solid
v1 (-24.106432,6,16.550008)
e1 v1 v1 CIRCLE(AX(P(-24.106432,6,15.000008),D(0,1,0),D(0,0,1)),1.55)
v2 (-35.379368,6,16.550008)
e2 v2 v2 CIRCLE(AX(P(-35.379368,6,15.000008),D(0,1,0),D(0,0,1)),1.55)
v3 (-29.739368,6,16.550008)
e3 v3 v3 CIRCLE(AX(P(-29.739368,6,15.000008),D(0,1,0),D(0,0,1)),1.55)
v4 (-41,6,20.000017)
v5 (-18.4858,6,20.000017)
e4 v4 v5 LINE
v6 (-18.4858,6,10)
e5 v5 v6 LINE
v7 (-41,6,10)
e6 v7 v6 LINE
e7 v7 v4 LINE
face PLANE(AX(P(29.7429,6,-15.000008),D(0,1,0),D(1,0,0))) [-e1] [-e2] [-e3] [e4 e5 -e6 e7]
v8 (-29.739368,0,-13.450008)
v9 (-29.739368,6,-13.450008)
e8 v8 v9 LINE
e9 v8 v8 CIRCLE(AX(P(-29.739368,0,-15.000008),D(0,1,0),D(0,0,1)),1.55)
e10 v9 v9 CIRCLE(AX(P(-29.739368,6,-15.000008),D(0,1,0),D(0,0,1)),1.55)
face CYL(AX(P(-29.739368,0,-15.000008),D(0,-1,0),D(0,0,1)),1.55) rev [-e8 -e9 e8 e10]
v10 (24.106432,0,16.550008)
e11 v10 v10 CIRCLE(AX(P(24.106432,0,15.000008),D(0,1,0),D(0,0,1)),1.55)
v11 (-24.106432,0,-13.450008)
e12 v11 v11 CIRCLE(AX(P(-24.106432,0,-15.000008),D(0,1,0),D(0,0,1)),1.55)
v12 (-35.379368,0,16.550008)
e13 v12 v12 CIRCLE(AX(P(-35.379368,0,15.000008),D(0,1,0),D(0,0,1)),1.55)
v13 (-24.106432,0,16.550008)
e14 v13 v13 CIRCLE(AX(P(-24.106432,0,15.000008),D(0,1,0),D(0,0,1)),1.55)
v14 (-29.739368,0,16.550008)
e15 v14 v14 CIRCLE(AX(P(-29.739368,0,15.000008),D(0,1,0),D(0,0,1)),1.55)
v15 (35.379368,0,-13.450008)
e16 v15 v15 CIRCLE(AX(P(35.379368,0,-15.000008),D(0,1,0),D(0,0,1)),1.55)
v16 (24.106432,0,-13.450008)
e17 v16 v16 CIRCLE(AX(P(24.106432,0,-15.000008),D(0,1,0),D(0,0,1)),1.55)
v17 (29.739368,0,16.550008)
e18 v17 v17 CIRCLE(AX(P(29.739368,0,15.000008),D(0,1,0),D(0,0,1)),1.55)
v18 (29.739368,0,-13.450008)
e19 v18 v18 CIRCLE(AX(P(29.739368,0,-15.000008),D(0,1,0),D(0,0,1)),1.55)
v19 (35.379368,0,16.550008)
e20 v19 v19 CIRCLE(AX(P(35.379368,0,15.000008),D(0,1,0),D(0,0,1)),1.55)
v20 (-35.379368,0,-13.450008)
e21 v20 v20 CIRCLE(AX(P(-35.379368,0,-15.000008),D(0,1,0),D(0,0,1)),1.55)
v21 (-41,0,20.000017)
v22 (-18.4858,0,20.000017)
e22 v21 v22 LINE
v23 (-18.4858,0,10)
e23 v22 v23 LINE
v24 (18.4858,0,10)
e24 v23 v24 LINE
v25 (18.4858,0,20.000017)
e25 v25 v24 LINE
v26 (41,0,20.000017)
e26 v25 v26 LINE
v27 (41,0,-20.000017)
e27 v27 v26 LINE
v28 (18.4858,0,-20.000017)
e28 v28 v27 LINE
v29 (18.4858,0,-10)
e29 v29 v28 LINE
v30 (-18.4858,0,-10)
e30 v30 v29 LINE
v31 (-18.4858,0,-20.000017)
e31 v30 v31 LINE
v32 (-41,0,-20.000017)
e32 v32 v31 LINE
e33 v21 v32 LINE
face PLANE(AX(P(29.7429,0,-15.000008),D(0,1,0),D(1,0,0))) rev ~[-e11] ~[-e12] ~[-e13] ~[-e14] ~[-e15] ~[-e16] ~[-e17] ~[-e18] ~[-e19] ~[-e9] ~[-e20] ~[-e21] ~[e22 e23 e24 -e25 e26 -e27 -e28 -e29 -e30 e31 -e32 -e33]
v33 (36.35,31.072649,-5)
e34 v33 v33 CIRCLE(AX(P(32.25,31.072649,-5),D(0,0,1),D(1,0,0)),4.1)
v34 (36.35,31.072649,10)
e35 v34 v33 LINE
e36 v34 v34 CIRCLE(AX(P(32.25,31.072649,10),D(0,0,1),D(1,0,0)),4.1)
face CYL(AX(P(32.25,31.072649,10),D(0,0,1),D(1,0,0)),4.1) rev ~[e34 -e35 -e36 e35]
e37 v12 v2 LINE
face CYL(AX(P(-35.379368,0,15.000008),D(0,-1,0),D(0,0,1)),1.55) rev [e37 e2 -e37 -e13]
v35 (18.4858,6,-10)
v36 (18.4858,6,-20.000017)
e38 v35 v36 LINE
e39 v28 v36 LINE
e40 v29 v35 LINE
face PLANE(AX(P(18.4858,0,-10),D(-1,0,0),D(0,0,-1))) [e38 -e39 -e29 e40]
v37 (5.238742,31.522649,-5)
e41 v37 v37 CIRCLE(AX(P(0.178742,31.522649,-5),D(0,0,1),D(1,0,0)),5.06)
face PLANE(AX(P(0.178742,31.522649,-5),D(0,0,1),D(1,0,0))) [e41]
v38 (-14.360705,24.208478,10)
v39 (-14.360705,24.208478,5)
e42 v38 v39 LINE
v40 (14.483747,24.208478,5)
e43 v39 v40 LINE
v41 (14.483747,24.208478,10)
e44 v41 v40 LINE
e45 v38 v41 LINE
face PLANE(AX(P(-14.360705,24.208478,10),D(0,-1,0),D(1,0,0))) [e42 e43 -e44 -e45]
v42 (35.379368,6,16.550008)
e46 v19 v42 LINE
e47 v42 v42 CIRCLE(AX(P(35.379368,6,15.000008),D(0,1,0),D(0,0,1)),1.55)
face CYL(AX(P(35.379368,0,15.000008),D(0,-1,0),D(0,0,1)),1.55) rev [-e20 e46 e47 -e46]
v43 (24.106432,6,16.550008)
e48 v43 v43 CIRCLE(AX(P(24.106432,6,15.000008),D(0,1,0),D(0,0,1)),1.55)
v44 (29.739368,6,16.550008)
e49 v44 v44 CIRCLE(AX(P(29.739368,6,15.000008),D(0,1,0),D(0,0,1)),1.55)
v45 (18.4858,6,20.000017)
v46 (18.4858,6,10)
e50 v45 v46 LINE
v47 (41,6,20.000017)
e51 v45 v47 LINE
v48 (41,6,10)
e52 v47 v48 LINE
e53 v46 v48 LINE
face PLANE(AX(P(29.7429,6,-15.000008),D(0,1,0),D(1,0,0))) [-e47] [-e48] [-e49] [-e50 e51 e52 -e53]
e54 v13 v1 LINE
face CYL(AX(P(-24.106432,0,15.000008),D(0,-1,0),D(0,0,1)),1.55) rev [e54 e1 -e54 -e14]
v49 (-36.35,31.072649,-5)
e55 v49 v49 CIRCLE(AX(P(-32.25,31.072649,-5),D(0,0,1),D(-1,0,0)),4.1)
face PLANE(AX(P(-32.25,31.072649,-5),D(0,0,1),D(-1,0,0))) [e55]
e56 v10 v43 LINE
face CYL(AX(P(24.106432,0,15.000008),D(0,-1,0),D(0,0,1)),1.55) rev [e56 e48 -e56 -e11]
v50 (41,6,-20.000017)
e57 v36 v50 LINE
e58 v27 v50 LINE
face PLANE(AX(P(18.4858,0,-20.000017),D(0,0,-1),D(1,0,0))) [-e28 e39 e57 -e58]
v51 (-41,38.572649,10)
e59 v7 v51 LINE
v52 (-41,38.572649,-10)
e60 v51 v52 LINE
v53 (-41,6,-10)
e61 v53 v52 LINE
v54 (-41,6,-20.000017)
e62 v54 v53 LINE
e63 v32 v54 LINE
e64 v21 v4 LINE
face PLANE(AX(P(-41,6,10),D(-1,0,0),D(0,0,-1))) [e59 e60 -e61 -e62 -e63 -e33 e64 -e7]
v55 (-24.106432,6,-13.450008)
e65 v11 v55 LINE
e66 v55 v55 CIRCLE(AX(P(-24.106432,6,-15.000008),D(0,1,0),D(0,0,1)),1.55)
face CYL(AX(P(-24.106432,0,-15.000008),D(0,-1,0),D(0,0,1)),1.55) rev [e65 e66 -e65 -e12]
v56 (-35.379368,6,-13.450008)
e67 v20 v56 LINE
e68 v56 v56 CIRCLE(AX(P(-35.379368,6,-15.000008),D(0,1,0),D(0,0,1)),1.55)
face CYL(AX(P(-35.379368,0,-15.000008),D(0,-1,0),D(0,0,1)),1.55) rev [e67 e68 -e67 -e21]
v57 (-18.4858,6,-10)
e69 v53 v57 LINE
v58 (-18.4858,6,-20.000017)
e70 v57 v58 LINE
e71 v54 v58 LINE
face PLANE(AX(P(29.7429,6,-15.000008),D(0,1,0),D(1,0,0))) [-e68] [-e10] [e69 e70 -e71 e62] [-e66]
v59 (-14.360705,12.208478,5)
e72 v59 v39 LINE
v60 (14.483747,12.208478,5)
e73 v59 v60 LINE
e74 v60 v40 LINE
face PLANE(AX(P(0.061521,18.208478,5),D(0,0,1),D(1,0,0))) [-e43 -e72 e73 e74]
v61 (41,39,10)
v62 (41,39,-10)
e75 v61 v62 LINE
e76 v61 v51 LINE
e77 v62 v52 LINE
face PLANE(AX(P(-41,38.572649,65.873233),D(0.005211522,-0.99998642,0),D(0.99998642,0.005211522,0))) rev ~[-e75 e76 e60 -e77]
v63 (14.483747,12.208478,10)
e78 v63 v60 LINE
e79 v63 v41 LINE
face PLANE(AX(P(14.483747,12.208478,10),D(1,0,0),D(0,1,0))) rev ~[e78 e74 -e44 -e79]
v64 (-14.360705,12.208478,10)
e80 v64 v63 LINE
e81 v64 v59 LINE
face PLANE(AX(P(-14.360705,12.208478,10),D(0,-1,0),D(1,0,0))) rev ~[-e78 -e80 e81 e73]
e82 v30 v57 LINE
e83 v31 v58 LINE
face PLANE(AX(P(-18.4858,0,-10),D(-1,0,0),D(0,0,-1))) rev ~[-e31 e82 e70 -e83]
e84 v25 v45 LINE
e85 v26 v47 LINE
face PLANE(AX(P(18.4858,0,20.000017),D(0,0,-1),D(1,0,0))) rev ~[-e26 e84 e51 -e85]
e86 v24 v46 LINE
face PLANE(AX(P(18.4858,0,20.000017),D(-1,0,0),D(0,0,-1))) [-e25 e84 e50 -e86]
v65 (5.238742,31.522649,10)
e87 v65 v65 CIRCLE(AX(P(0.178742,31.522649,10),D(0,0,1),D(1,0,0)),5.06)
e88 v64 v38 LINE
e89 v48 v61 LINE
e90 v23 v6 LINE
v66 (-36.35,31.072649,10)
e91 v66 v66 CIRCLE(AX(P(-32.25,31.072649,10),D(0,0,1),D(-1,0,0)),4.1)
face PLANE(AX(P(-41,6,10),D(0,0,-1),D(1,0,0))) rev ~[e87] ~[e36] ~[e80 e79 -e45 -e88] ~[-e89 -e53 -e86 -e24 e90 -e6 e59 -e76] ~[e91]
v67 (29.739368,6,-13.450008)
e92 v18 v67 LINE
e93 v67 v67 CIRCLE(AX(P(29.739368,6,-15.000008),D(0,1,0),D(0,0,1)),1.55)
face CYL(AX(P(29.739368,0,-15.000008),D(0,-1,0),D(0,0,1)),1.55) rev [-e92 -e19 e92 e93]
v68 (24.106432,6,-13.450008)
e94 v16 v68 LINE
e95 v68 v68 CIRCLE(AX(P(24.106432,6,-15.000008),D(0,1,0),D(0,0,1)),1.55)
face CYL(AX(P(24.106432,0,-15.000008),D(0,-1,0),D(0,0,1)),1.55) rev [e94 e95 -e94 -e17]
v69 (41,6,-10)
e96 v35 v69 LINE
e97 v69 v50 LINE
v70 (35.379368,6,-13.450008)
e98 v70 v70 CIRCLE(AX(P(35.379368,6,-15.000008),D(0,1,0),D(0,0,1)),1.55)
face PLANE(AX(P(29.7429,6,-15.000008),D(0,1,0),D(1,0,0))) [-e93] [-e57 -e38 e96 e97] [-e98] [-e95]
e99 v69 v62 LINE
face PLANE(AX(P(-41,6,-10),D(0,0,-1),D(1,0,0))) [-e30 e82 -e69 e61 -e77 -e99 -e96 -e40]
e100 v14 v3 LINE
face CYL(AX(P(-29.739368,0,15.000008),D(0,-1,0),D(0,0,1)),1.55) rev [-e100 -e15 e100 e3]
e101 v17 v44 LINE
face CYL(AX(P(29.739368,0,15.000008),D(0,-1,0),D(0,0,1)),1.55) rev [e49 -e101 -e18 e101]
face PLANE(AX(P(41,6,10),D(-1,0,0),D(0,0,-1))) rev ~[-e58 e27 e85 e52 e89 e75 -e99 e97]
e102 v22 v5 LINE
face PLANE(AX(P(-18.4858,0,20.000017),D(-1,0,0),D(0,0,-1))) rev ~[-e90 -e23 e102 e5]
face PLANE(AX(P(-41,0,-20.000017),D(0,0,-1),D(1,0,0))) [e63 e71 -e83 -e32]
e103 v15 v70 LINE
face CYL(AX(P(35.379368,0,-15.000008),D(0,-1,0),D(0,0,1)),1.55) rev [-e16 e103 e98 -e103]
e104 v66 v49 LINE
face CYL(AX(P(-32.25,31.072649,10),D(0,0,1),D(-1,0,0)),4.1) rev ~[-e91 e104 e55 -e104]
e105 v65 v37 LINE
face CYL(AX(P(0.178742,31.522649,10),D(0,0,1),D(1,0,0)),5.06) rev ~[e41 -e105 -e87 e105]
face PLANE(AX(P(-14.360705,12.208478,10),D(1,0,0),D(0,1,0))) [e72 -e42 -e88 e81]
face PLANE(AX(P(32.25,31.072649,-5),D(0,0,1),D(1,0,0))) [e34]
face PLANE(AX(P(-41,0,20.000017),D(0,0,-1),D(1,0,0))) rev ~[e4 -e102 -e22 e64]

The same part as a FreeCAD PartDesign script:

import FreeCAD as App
import Part
import Sketcher
from FreeCAD import Vector


def add_polygon(sketch, points):
    """Adds a closed chain of lines whose ends are joined by coincident constraints."""
    first, n = sketch.GeometryCount, len(points)
    for a, b in zip(points, points[1:] + points[:1]):
        sketch.addGeometry(Part.LineSegment(App.Vector(*a, 0), App.Vector(*b, 0)), False)
    for i in range(n):
        sketch.addConstraint(Sketcher.Constraint("Coincident", first + i, 2, first + (i + 1) % n, 1))

doc = App.newDocument("Part")
body = doc.addObject("PartDesign::Body", "Body")

# Sketch on XZ plane
sketch1 = body.newObject("Sketcher::SketchObject", "Sketch")
sketch1.AttachmentSupport = (doc.getObject("XZ_Plane"), [""])
sketch1.MapMode = "FlatFace"
add_polygon(sketch1, [(-41, -20), (-41, 20), (-18.5, 20), (-18.5, 10), (18.5, 10), (18.5, 20), (41, 20), (41, -20), (18.5, -20), (18.5, -10), (-18.5, -10), (-18.5, -20)])  # lines 0-11
sketch1.addGeometry(Part.Circle(Vector(-35.4, -15, 0), Vector(0, 0, 1), 1.6), False)  # 12
sketch1.addGeometry(Part.Circle(Vector(-29.7, -15, 0), Vector(0, 0, 1), 1.6), False)  # 13
sketch1.addGeometry(Part.Circle(Vector(-24.1, -15, 0), Vector(0, 0, 1), 1.6), False)  # 14
sketch1.addGeometry(Part.Circle(Vector(-24.1, 15, 0), Vector(0, 0, 1), 1.6), False)  # 15
sketch1.addGeometry(Part.Circle(Vector(-35.4, 15, 0), Vector(0, 0, 1), 1.6), False)  # 16
sketch1.addGeometry(Part.Circle(Vector(-29.7, 15, 0), Vector(0, 0, 1), 1.6), False)  # 17
sketch1.addGeometry(Part.Circle(Vector(35.4, 15, 0), Vector(0, 0, 1), 1.6), False)  # 18
sketch1.addGeometry(Part.Circle(Vector(24.1, 15, 0), Vector(0, 0, 1), 1.6), False)  # 19
sketch1.addGeometry(Part.Circle(Vector(29.7, 15, 0), Vector(0, 0, 1), 1.6), False)  # 20
sketch1.addGeometry(Part.Circle(Vector(35.4, -15, 0), Vector(0, 0, 1), 1.6), False)  # 21
sketch1.addGeometry(Part.Circle(Vector(24.1, -15, 0), Vector(0, 0, 1), 1.6), False)  # 22
sketch1.addGeometry(Part.Circle(Vector(29.7, -15, 0), Vector(0, 0, 1), 1.6), False)  # 23
sketch1.addConstraint([
    Sketcher.Constraint("Vertical", 0),
    Sketcher.Constraint("Horizontal", 1),
    Sketcher.Constraint("Vertical", 2),
    Sketcher.Constraint("Horizontal", 3),
    Sketcher.Constraint("Vertical", 4),
    Sketcher.Constraint("Horizontal", 5),
    Sketcher.Constraint("Vertical", 6),
    Sketcher.Constraint("Horizontal", 7),
    Sketcher.Constraint("Vertical", 8),
    Sketcher.Constraint("Horizontal", 9),
    Sketcher.Constraint("Vertical", 10),
    Sketcher.Constraint("Horizontal", 11),
    Sketcher.Constraint("Equal", 12, 13),
    Sketcher.Constraint("Equal", 13, 14),
    Sketcher.Constraint("Equal", 14, 15),
    Sketcher.Constraint("Equal", 15, 16),
    Sketcher.Constraint("Equal", 16, 17),
    Sketcher.Constraint("Equal", 17, 18),
    Sketcher.Constraint("Equal", 18, 19),
    Sketcher.Constraint("Equal", 19, 20),
    Sketcher.Constraint("Equal", 20, 21),
    Sketcher.Constraint("Equal", 21, 22),
    Sketcher.Constraint("Equal", 22, 23),
    Sketcher.Constraint("Symmetric", 12, 3, 18, 3, -1, 1),
    Sketcher.Constraint("Symmetric", 14, 3, 19, 3, -1, 1),
    Sketcher.Constraint("Symmetric", 13, 3, 20, 3, -1, 1),
    Sketcher.Constraint("Symmetric", 16, 3, 21, 3, -1, 1),
    Sketcher.Constraint("Symmetric", 15, 3, 22, 3, -1, 1),
    Sketcher.Constraint("Symmetric", 17, 3, 23, 3, -1, 1),
    Sketcher.Constraint("Symmetric", 0, 2, 6, 2, -1, 1),
    Sketcher.Constraint("Symmetric", 2, 2, 8, 2, -1, 1),
    Sketcher.Constraint("Symmetric", 4, 2, 10, 2, -1, 1),
    Sketcher.Constraint("Symmetric", 16, 3, 18, 3, -2),
    Sketcher.Constraint("Symmetric", 15, 3, 19, 3, -2),
    Sketcher.Constraint("Symmetric", 17, 3, 20, 3, -2),
    Sketcher.Constraint("Symmetric", 1, 2, 4, 2, -2),
    Sketcher.Constraint("Horizontal", 12, 3, 13, 3),
    Sketcher.Constraint("Horizontal", 13, 3, 14, 3),
    Sketcher.Constraint("Diameter", 12, 3.1),
    Sketcher.Constraint("DistanceX", 0, 2, -1, 1, 41.0),
    Sketcher.Constraint("DistanceY", -1, 1, 2, 2, 10.0),
    Sketcher.Constraint("DistanceX", 12, 3, 13, 3, 5.64),
    Sketcher.Constraint("DistanceX", 1, 1, 1, 2, 22.5142),
    Sketcher.Constraint("DistanceX", 15, 3, 18, 3, 59.4858),
    Sketcher.Constraint("DistanceY", 0, 1, 0, 2, 40.000034),
    Sketcher.Constraint("DistanceY", 12, 3, -1, 1, 15.000008),
    Sketcher.Constraint("DistanceX", 12, 3, -1, 1, 35.379368),
])
pad1 = body.newObject("PartDesign::Pad", "Pad")
pad1.Profile = sketch1
pad1.Length = 6
pad1.Reversed = True

# Sketch on XZ plane
sketch2 = body.newObject("Sketcher::SketchObject", "Sketch001")
sketch2.AttachmentSupport = (doc.getObject("XZ_Plane"), [""])
sketch2.MapMode = "FlatFace"
sketch2.AttachmentOffset = App.Placement(Vector(0, 0, -6), App.Rotation())
add_polygon(sketch2, [(-41, -10), (-41, 10), (41, 10), (41, -10)])  # lines 0-3
sketch2.addConstraint([
    Sketcher.Constraint("Vertical", 0),
    Sketcher.Constraint("Horizontal", 1),
    Sketcher.Constraint("Vertical", 2),
    Sketcher.Constraint("Horizontal", 3),
    Sketcher.Constraint("Symmetric", 0, 2, 2, 2, -1, 1),
    Sketcher.Constraint("DistanceX", 1, 1, 1, 2, 82.0),
    Sketcher.Constraint("DistanceY", 0, 1, 0, 2, 20.0),
])
pad2 = body.newObject("PartDesign::Pad", "Pad001")
pad2.Profile = sketch2
pad2.Length = 49
pad2.Reversed = True

# Sketch on XY plane
sketch3 = body.newObject("Sketcher::SketchObject", "Sketch002")
sketch3.AttachmentSupport = (doc.getObject("XY_Plane"), [""])
sketch3.MapMode = "FlatFace"
sketch3.AttachmentOffset = App.Placement(Vector(0, 0, 10), App.Rotation())
sketch3.addGeometry([
    Part.Circle(Vector(32.2, 31.1, 0), Vector(0, 0, 1), 4.1),
    Part.Circle(Vector(-32.2, 31.1, 0), Vector(0, 0, 1), 4.1),
], False)
sketch3.addConstraint([
    Sketcher.Constraint("Equal", 0, 1),
    Sketcher.Constraint("Symmetric", 0, 3, 1, 3, -2),
    Sketcher.Constraint("Diameter", 0, 8.2),
    Sketcher.Constraint("DistanceX", 1, 3, 0, 3, 64.5),
    Sketcher.Constraint("DistanceY", -1, 1, 0, 3, 31.072649),
])
pocket1 = body.newObject("PartDesign::Pocket", "Pocket")
pocket1.Profile = sketch3
pocket1.Length = 15

# Sketch on XY plane
sketch4 = body.newObject("Sketcher::SketchObject", "Sketch003")
sketch4.AttachmentSupport = (doc.getObject("XY_Plane"), [""])
sketch4.MapMode = "FlatFace"
sketch4.AttachmentOffset = App.Placement(Vector(0, 0, 10), App.Rotation())
sketch4.addGeometry(Part.Circle(Vector(0, 32, 0), Vector(0, 0, 1), 5), False)
sketch4.addConstraint([
    Sketcher.Constraint("Diameter", 0, 10.12),
    Sketcher.Constraint("DistanceY", -1, 1, 0, 3, 31.522649),
    Sketcher.Constraint("DistanceX", -1, 1, 0, 3, 0.178742),
])
pocket2 = body.newObject("PartDesign::Pocket", "Pocket001")
pocket2.Profile = sketch4
pocket2.Length = 15

# Sketch on XY plane
sketch5 = body.newObject("Sketcher::SketchObject", "Sketch004")
sketch5.AttachmentSupport = (doc.getObject("XY_Plane"), [""])
sketch5.MapMode = "FlatFace"
sketch5.AttachmentOffset = App.Placement(Vector(0, 0, -10), App.Rotation())
add_polygon(sketch5, [(-41, 39), (-41, 55), (41, 55), (41, 39)])  # lines 0-3
sketch5.addConstraint([
    Sketcher.Constraint("Vertical", 0),
    Sketcher.Constraint("Horizontal", 1),
    Sketcher.Constraint("Vertical", 2),
    Sketcher.Constraint("DistanceX", 1, 1, 1, 2, 82.0),
    Sketcher.Constraint("DistanceY", 2, 2, 2, 1, 16.0),
    Sketcher.Constraint("DistanceX", 0, 2, -1, 1, 41.0),
    Sketcher.Constraint("DistanceY", -1, 1, 0, 2, 55.0),
    Sketcher.Constraint("DistanceY", 0, 1, 0, 2, 16.427351),
])
pocket3 = body.newObject("PartDesign::Pocket", "Pocket002")
pocket3.Profile = sketch5
pocket3.Type = "ThroughAll"
pocket3.Midplane = True

# Sketch on XY plane
sketch6 = body.newObject("Sketcher::SketchObject", "Sketch005")
sketch6.AttachmentSupport = (doc.getObject("XY_Plane"), [""])
sketch6.MapMode = "FlatFace"
sketch6.AttachmentOffset = App.Placement(Vector(0, 0, 10), App.Rotation())
add_polygon(sketch6, [(-14, 24), (-14, 12), (14, 12), (14, 24)])  # lines 0-3
sketch6.addConstraint([
    Sketcher.Constraint("Vertical", 0),
    Sketcher.Constraint("Horizontal", 1),
    Sketcher.Constraint("Vertical", 2),
    Sketcher.Constraint("Horizontal", 3),
    Sketcher.Constraint("DistanceY", 0, 2, 0, 1, 12.0),
    Sketcher.Constraint("DistanceX", 1, 1, 1, 2, 28.844452),
    Sketcher.Constraint("DistanceX", 0, 2, -1, 1, 14.360705),
    Sketcher.Constraint("DistanceY", -1, 1, 0, 2, 12.208478),
])
pocket4 = body.newObject("PartDesign::Pocket", "Pocket003")
pocket4.Profile = sketch6
pocket4.Length = 5

doc.recompute()
